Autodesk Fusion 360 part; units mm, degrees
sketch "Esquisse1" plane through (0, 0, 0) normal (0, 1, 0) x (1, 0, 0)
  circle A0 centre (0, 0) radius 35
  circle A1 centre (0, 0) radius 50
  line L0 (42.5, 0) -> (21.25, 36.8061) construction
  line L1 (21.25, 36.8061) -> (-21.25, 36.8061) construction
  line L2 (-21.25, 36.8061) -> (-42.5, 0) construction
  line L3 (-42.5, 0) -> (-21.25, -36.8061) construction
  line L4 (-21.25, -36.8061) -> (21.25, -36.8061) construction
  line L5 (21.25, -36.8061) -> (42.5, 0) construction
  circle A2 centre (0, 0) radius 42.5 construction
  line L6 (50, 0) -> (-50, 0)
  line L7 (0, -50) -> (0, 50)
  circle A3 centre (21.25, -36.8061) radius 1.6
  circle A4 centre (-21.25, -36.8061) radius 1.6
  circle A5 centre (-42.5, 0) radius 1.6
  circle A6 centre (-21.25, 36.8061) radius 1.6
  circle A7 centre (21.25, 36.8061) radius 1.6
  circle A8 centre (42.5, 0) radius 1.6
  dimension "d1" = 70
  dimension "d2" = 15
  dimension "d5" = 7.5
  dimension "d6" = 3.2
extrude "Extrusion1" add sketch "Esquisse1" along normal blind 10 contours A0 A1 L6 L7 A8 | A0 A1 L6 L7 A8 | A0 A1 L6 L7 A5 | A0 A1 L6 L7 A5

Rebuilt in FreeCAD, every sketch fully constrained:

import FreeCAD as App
import Part
import Sketcher

V = App.Vector
Q = App.Units.Quantity

doc = App.newDocument("Part")
body = doc.addObject("PartDesign::Body", "Body")

# Sketch on XZ plane
sketch1 = body.newObject("Sketcher::SketchObject", "Sketch")
sketch1.AttachmentSupport = (doc.getObject("XZ_Plane"), [""])
sketch1.MapMode = "FlatFace"
sketch1.addGeometry([
    Part.Circle(V(0, 0, 0), V(0, 0, 1), 50),  # 0
    Part.Circle(V(42.5, 0, 0), V(0, 0, 1), 1.6),  # 1
    Part.Circle(V(0, 0, 0), V(0, 0, 1), 35),  # 2
    Part.Circle(V(21.2, 36.8, 0), V(0, 0, 1), 1.6),  # 3
    Part.Circle(V(21.2, -36.8, 0), V(0, 0, 1), 1.6),  # 4
    Part.Circle(V(-21.2, 36.8, 0), V(0, 0, 1), 1.6),  # 5
    Part.Circle(V(-42.5, 0, 0), V(0, 0, 1), 1.6),  # 6
    Part.Circle(V(-21.2, -36.8, 0), V(0, 0, 1), 1.6),  # 7
], False)
sketch1.addConstraint([
    Sketcher.Constraint("Coincident", 0, 3, -1, 1),
    Sketcher.Constraint("Coincident", 2, 3, -1, 1),
    Sketcher.Constraint("Equal", 1, 3),
    Sketcher.Constraint("Equal", 3, 4),
    Sketcher.Constraint("Equal", 4, 5),
    Sketcher.Constraint("Equal", 5, 6),
    Sketcher.Constraint("Equal", 6, 7),
    Sketcher.Constraint("Symmetric", 4, 3, 5, 3, -1, 1),
    Sketcher.Constraint("Symmetric", 1, 3, 6, 3, -1, 1),
    Sketcher.Constraint("Symmetric", 3, 3, 7, 3, -1, 1),
    Sketcher.Constraint("Symmetric", 3, 3, 5, 3, -2),
    Sketcher.Constraint("PointOnObject", 1, 3, -1),
    Sketcher.Constraint("Diameter", 2, Q("70 mm")),
    Sketcher.Constraint("Diameter", 1, Q("3.2 mm")),
    Sketcher.Constraint("Diameter", 0, Q("100 mm")),
    Sketcher.Constraint("DistanceX", -1, 1, 1, 3, Q("42.5 mm")),
    Sketcher.Constraint("DistanceX", 5, 3, 3, 3, Q("42.5 mm")),
    Sketcher.Constraint("DistanceY", -1, 1, 3, 3, Q("36.806 mm")),
])
pad1 = body.newObject("PartDesign::Pad", "Pad")
pad1.Profile = sketch1
pad1.Length = 10
pad1.Reversed = True

doc.recompute()
